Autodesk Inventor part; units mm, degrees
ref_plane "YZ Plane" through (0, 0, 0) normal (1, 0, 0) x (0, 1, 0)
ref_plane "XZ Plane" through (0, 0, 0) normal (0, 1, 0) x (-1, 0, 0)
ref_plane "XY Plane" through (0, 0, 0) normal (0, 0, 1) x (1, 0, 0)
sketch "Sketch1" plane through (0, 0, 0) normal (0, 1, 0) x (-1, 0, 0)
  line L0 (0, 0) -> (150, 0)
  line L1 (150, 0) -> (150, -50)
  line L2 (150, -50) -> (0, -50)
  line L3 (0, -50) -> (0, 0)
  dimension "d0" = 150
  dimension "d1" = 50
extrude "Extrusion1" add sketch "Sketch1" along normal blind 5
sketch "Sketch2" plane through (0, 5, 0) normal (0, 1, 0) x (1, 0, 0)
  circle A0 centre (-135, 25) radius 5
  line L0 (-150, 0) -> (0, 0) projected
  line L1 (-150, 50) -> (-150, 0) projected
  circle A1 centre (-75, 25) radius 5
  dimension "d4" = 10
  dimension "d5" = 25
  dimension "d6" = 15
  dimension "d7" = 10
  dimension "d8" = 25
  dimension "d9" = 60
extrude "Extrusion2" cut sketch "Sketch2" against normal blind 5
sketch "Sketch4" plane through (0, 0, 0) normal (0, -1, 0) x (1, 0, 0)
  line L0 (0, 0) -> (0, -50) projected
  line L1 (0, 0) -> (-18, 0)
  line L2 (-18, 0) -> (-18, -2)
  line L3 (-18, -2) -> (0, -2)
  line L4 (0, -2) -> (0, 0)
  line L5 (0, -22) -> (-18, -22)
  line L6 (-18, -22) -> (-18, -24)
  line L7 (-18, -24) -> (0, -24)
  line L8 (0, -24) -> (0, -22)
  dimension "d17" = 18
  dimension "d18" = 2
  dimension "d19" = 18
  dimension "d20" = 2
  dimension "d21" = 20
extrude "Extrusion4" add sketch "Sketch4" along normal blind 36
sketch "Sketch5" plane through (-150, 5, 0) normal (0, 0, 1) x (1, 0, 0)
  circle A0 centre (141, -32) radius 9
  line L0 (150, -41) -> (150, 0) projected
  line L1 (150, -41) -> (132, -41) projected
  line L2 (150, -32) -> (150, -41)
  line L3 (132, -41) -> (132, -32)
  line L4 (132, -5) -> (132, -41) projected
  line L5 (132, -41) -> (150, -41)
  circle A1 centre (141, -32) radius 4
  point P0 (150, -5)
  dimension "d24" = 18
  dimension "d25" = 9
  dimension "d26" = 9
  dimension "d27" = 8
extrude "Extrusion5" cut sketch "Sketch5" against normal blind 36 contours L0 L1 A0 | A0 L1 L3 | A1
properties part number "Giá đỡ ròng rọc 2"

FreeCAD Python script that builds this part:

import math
import FreeCAD as App
import Part
import Sketcher
from FreeCAD import Vector


def add_polygon(sketch, points):
    """Adds a closed chain of lines whose ends are joined by coincident constraints."""
    first, n = sketch.GeometryCount, len(points)
    for a, b in zip(points, points[1:] + points[:1]):
        sketch.addGeometry(Part.LineSegment(App.Vector(*a, 0), App.Vector(*b, 0)), False)
    for i in range(n):
        sketch.addConstraint(Sketcher.Constraint("Coincident", first + i, 2, first + (i + 1) % n, 1))

doc = App.newDocument("Part")
body = doc.addObject("PartDesign::Body", "Body")

# Sketch on XZ plane
sketch1 = body.newObject("Sketcher::SketchObject", "Sketch")
sketch1.AttachmentSupport = (doc.getObject("XZ_Plane"), [""])
sketch1.MapMode = "FlatFace"
add_polygon(sketch1, [(-150, 0), (0, 0), (0, -50), (-150, -50)])  # lines 0-3
sketch1.addConstraint([
    Sketcher.Constraint("Horizontal", 0),
    Sketcher.Constraint("Vertical", 1),
    Sketcher.Constraint("Horizontal", 2),
    Sketcher.Constraint("Vertical", 3),
    Sketcher.Constraint("Coincident", 0, 2, -1, 1),
    Sketcher.Constraint("DistanceX", 0, 1, 0, 2, 150.0),
    Sketcher.Constraint("DistanceY", 1, 2, 1, 1, 50.0),
])
pad1 = body.newObject("PartDesign::Pad", "Pad")
pad1.Profile = sketch1
pad1.Length = 5
pad1.Reversed = True

# Sketch on XZ plane
sketch2 = body.newObject("Sketcher::SketchObject", "Sketch001")
sketch2.AttachmentSupport = (doc.getObject("XZ_Plane"), [""])
sketch2.MapMode = "FlatFace"
sketch2.AttachmentOffset = App.Placement(Vector(0, 0, -5), App.Rotation())
sketch2.addGeometry([
    Part.Circle(Vector(-135, -25, 0), Vector(0, 0, 1), 5),
    Part.Circle(Vector(-75, -25, 0), Vector(0, 0, 1), 5),
], False)
sketch2.addConstraint([
    Sketcher.Constraint("Equal", 0, 1),
    Sketcher.Constraint("Horizontal", 0, 3, 1, 3),
    Sketcher.Constraint("Diameter", 0, 10.0),
    Sketcher.Constraint("DistanceY", 0, 3, -1, 1, 25.0),
    Sketcher.Constraint("DistanceX", 0, 3, 1, 3, 60.0),
    Sketcher.Constraint("DistanceX", 0, 3, -1, 1, 135.0),
])
pocket1 = body.newObject("PartDesign::Pocket", "Pocket")
pocket1.Profile = sketch2
pocket1.Length = 5
pocket1.Reversed = True

# Sketch on XZ plane
sketch3 = body.newObject("Sketcher::SketchObject", "Sketch002")
sketch3.AttachmentSupport = (doc.getObject("XZ_Plane"), [""])
sketch3.MapMode = "FlatFace"
add_polygon(sketch3, [(0, -24), (0, -22), (-18, -22), (-18, -24)])  # lines 0-3
add_polygon(sketch3, [(0, -2), (0, 0), (-18, 0), (-18, -2)])  # lines 4-7
sketch3.addConstraint([
    Sketcher.Constraint("Vertical", 0),
    Sketcher.Constraint("Horizontal", 1),
    Sketcher.Constraint("Vertical", 2),
    Sketcher.Constraint("Horizontal", 3),
    Sketcher.Constraint("Vertical", 4),
    Sketcher.Constraint("Horizontal", 5),
    Sketcher.Constraint("Vertical", 6),
    Sketcher.Constraint("Horizontal", 7),
    Sketcher.Constraint("Coincident", 4, 2, -1, 1),
    Sketcher.Constraint("PointOnObject", 0, 2, -2),
    Sketcher.Constraint("Vertical", 2, 2, 5, 2),
    Sketcher.Constraint("Equal", 2, 4),
    Sketcher.Constraint("DistanceX", 1, 2, 1, 1, 18.0),
    Sketcher.Constraint("DistanceY", 0, 1, 0, 2, 2.0),
    Sketcher.Constraint("DistanceY", 1, 2, 6, 2, 20.0),
])
pad2 = body.newObject("PartDesign::Pad", "Pad001")
pad2.Profile = sketch3
pad2.Length = 36

# Sketch on XY plane
sketch4 = body.newObject("Sketcher::SketchObject", "Sketch003")
sketch4.AttachmentSupport = (doc.getObject("XY_Plane"), [""])
sketch4.MapMode = "FlatFace"
sketch4.addGeometry([
    Part.LineSegment(Vector(0, -36, 0), Vector(0, -27, 0)),  # 0
    Part.ArcOfCircle(Part.Circle(Vector(-9, -27, 0), Vector(0, 0, 1), 9), math.radians(-90), math.radians(0)),  # 1
    Part.LineSegment(Vector(-9, -36, 0), Vector(0, -36, 0)),  # 2
    Part.ArcOfCircle(Part.Circle(Vector(-9, -27, 0), Vector(0, 0, 1), 9), math.radians(180), math.radians(270)),  # 3
    Part.LineSegment(Vector(-18, -27, 0), Vector(-18, -36, 0)),  # 4
    Part.LineSegment(Vector(-18, -36, 0), Vector(-9, -36, 0)),  # 5
    Part.Circle(Vector(-9, -27, 0), Vector(0, 0, 1), 4),  # 6
], False)
sketch4.addConstraint([
    Sketcher.Constraint("Tangent", 0, 2, 1, 2),
    Sketcher.Constraint("Tangent", 1, 1, 2, 1),
    Sketcher.Constraint("Coincident", 2, 2, 0, 1),
    Sketcher.Constraint("Tangent", 3, 1, 4, 1),
    Sketcher.Constraint("Coincident", 4, 2, 5, 1),
    Sketcher.Constraint("Tangent", 5, 2, 3, 2),
    Sketcher.Constraint("Vertical", 0),
    Sketcher.Constraint("Horizontal", 2),
    Sketcher.Constraint("Vertical", 4),
    Sketcher.Constraint("Horizontal", 5),
    Sketcher.Constraint("Coincident", 3, 3, 1, 3),
    Sketcher.Constraint("Coincident", 6, 3, 1, 3),
    Sketcher.Constraint("Equal", 1, 3),
    Sketcher.Constraint("PointOnObject", 0, 2, -2),
    Sketcher.Constraint("Diameter", 6, 8.0),
    Sketcher.Constraint("Radius", 1, 9.0),
    Sketcher.Constraint("DistanceY", 1, 3, -1, 1, 27.0),
])
pocket2 = body.newObject("PartDesign::Pocket", "Pocket001")
pocket2.Profile = sketch4
pocket2.Length = 36

doc.recompute()
